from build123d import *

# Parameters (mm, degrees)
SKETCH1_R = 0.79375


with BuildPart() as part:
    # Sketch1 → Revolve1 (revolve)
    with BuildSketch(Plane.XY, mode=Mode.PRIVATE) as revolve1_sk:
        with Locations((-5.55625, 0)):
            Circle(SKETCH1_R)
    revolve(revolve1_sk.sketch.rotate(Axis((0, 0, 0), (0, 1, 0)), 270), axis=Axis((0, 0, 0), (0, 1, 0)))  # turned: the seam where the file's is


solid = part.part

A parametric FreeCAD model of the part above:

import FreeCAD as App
import Part
import Sketcher
from FreeCAD import Vector
Q = App.Units.Quantity

doc = App.newDocument("Part")
body = doc.addObject("PartDesign::Body", "Body")

# Sketch on XY plane
sketch1 = body.newObject("Sketcher::SketchObject", "Sketch")
sketch1.AttachmentSupport = (doc.getObject("XY_Plane"), [""])
sketch1.MapMode = "FlatFace"
sketch1.addGeometry(Part.Circle(Vector(-5.6, 0, 0), Vector(0, 0, 1), 0.8), False)
sketch1.addConstraint([
    Sketcher.Constraint("PointOnObject", 0, 3, -1),
    Sketcher.Constraint("Diameter", 0, Q("0.0625 in")),
    Sketcher.Constraint("DistanceX", 0, 3, -1, 1, Q("0.21875 in")),
])
revolution = body.newObject("PartDesign::Revolution", "Revolution")
revolution.Profile = sketch1
revolution.ReferenceAxis = (sketch1, ["V_Axis"])
revolution.Angle = 360

doc.recompute()
